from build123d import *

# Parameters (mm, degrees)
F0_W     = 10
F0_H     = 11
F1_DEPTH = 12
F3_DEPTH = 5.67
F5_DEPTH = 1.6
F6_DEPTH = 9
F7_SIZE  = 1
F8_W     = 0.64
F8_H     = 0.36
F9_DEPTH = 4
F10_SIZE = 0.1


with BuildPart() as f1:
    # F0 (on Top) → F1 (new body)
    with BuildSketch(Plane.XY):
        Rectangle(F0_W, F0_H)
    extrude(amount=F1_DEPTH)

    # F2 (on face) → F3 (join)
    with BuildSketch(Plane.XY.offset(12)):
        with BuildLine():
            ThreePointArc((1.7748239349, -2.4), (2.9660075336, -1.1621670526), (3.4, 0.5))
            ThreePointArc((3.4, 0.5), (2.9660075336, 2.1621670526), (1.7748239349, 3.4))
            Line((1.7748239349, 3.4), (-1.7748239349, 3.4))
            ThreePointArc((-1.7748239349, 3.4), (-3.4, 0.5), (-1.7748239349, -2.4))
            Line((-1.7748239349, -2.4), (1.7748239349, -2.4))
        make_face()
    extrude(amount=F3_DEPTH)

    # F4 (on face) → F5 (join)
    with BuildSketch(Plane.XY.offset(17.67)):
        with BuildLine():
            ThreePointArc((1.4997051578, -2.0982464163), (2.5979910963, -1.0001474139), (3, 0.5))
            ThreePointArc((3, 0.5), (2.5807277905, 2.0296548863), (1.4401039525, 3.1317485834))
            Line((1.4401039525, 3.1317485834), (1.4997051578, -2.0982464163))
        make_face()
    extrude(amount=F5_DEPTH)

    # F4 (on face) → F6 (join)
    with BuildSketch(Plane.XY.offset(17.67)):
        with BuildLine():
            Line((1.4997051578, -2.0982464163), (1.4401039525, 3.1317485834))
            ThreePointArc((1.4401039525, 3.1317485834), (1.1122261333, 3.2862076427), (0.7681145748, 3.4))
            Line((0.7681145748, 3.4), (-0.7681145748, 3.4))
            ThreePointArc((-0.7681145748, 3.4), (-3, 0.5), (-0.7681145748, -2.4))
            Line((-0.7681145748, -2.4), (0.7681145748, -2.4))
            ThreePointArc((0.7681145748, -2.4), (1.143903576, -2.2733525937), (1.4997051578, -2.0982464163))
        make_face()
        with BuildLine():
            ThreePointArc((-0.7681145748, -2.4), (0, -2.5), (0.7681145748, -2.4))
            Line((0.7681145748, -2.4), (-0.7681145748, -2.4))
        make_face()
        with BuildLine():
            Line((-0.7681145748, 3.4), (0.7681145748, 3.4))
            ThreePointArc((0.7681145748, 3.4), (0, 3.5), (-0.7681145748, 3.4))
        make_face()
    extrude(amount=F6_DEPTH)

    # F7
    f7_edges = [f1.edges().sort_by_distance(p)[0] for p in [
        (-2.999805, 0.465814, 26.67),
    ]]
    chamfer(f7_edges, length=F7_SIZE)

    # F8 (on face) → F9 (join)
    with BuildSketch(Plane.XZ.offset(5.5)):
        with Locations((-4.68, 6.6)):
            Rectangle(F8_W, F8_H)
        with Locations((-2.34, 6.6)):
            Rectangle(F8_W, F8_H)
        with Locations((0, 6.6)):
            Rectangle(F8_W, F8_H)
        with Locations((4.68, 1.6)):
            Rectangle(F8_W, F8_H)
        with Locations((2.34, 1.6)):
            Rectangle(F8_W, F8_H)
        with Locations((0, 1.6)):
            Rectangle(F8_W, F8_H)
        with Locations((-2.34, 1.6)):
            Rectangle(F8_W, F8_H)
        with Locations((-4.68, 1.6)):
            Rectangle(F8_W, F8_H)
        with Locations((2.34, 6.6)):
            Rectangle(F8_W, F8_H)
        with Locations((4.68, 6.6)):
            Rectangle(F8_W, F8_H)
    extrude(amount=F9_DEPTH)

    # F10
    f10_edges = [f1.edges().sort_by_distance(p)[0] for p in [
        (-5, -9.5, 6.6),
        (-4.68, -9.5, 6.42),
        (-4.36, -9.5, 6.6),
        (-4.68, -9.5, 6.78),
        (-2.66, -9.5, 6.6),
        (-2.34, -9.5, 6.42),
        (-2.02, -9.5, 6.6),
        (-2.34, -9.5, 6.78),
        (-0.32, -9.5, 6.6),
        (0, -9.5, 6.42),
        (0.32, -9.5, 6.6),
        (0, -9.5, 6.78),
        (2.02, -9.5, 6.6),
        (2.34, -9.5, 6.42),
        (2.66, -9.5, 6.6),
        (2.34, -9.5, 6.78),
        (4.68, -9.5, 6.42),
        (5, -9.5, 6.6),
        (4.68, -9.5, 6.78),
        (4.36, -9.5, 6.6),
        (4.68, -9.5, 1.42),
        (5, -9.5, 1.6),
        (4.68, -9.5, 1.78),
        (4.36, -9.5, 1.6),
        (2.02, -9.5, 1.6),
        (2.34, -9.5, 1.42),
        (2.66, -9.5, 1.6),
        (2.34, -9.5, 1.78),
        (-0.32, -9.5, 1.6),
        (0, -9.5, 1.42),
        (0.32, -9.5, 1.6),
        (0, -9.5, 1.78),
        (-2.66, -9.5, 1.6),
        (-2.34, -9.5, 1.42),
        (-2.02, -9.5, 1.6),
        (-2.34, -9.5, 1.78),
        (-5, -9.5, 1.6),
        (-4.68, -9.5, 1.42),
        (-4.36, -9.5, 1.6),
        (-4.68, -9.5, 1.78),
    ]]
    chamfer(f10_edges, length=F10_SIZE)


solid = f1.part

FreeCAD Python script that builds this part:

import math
import FreeCAD as App
import Part
import Sketcher
Q = App.Units.Quantity


def edges_at(feature, points):
    """Names of the edges that pass closest to the given points."""
    edges = feature.Shape.Edges
    near = lambda p: min(range(len(edges)), key=lambda i: edges[i].distToShape(Part.Vertex(*p))[0])
    return sorted({f"Edge{near(p) + 1}" for p in points})


def add_polygon(sketch, points):
    """Adds a closed chain of lines whose ends are joined by coincident constraints."""
    first, n = sketch.GeometryCount, len(points)
    for a, b in zip(points, points[1:] + points[:1]):
        sketch.addGeometry(Part.LineSegment(App.Vector(*a, 0), App.Vector(*b, 0)), False)
    for i in range(n):
        sketch.addConstraint(Sketcher.Constraint("Coincident", first + i, 2, first + (i + 1) % n, 1))

doc = App.newDocument("Part")
params = doc.addObject("Spreadsheet::Sheet", "Params")
for row, (alias, value) in enumerate([
    ("sketch1_width", "10 mm"),
    ("sketch1_height", "11 mm"),
    ("pad1_length", "12 mm"),
    ("sketch2_radius", "3.4 mm"),
    ("pad2_length", "5.67 mm"),
    ("sketch3_radius", "3 mm"),
    ("pad3_length", "1.6 mm"),
    ("sketch4_radius", "3 mm"),
    ("pad4_length", "9 mm"),
    ("chamfer_size", "1 mm"),
    ("sketch5_width", "0.64 mm"),
    ("sketch5_height", "0.36 mm"),
    ("pad5_length", "4 mm"),
    ("chamfer2_size", "0.1 mm"),
], start=1):
    params.set(f"A{row}", alias)
    params.set(f"B{row}", "=" + value)
    params.setAlias(f"B{row}", alias)

body = doc.addObject("PartDesign::Body", "Body")

sketch1 = body.newObject("Sketcher::SketchObject", "Sketch")
sketch1.AttachmentSupport = (doc.getObject("XY_Plane"), [""])
sketch1.MapMode = "FlatFace"
add_polygon(sketch1, [(-5, 6), (-5, -6), (5, -6), (5, 6)])
sketch1.addConstraint(Sketcher.Constraint("Vertical", 0))
sketch1.addConstraint(Sketcher.Constraint("Horizontal", 1))
sketch1.addConstraint(Sketcher.Constraint("Vertical", 2))
sketch1.addConstraint(Sketcher.Constraint("Horizontal", 3))
sketch1.addConstraint(Sketcher.Constraint("Symmetric", 0, 2, 2, 2, -1, 1))
sketch1.addConstraint(Sketcher.Constraint("DistanceX", 1, 1, 1, 2, Q("10 mm")))
sketch1.addConstraint(Sketcher.Constraint("DistanceY", 0, 2, 0, 1, Q("11 mm")))
sketch1.setExpression("Constraints[9]", "Params.sketch1_width")
sketch1.setExpression("Constraints[10]", "Params.sketch1_height")
pad1 = body.newObject("PartDesign::Pad", "Pad")
pad1.Profile = sketch1
pad1.setExpression("Length", "Params.pad1_length")

sketch2 = body.newObject("Sketcher::SketchObject", "Sketch001")
sketch2.AttachmentSupport = (doc.getObject("XY_Plane"), [""])
sketch2.MapMode = "FlatFace"
sketch2.AttachmentOffset = App.Placement(App.Vector(0, 0, 12), App.Rotation())
sketch2.addGeometry(Part.ArcOfCircle(Part.Circle(App.Vector(0, 0.5, 0), App.Vector(0, 0, 1), 3.4), math.radians(-59), math.radians(0)), False)
sketch2.addGeometry(Part.ArcOfCircle(Part.Circle(App.Vector(0, 0.5, 0), App.Vector(0, 0, 1), 3.4), math.radians(0), math.radians(59)), False)
sketch2.addGeometry(Part.LineSegment(App.Vector(1.8, 3.4, 0), App.Vector(-1.8, 3.4, 0)), False)
sketch2.addGeometry(Part.ArcOfCircle(Part.Circle(App.Vector(0, 0.5, 0), App.Vector(0, 0, 1), 3.4), math.radians(121), math.radians(239)), False)
sketch2.addGeometry(Part.LineSegment(App.Vector(-1.8, -2.4, 0), App.Vector(1.8, -2.4, 0)), False)
sketch2.addConstraint(Sketcher.Constraint("Tangent", 0, 2, 1, 1))
sketch2.addConstraint(Sketcher.Constraint("Coincident", 1, 2, 2, 1))
sketch2.addConstraint(Sketcher.Constraint("Coincident", 2, 2, 3, 1))
sketch2.addConstraint(Sketcher.Constraint("Coincident", 3, 2, 4, 1))
sketch2.addConstraint(Sketcher.Constraint("Coincident", 4, 2, 0, 1))
sketch2.addConstraint(Sketcher.Constraint("Horizontal", 2))
sketch2.addConstraint(Sketcher.Constraint("Horizontal", 4))
sketch2.addConstraint(Sketcher.Constraint("Coincident", 3, 3, 0, 3))
sketch2.addConstraint(Sketcher.Constraint("Equal", 0, 1))
sketch2.addConstraint(Sketcher.Constraint("Equal", 1, 3))
sketch2.addConstraint(Sketcher.Constraint("PointOnObject", 0, 3, -2))
sketch2.addConstraint(Sketcher.Constraint("Horizontal", 3, 3, 0, 2))
sketch2.addConstraint(Sketcher.Constraint("Vertical", 2, 2, 3, 2))
sketch2.addConstraint(Sketcher.Constraint("Radius", 0, Q("3.4 mm")))
sketch2.addConstraint(Sketcher.Constraint("DistanceY", -1, 1, 0, 3, Q("0.5 mm")))
sketch2.addConstraint(Sketcher.Constraint("DistanceY", -1, 1, 1, 2, Q("3.4 mm")))
sketch2.setExpression("Constraints[13]", "Params.sketch2_radius")
pad2 = body.newObject("PartDesign::Pad", "Pad001")
pad2.Profile = sketch2
pad2.setExpression("Length", "Params.pad2_length")

sketch3 = body.newObject("Sketcher::SketchObject", "Sketch002")
sketch3.AttachmentSupport = (doc.getObject("XY_Plane"), [""])
sketch3.MapMode = "FlatFace"
sketch3.AttachmentOffset = App.Placement(App.Vector(0, 0, 17.67), App.Rotation())
sketch3.addGeometry(Part.ArcOfCircle(Part.Circle(App.Vector(0, 0.5, 0), App.Vector(0, 0, 1), 3), math.radians(-60), math.radians(0)), False)
sketch3.addGeometry(Part.ArcOfCircle(Part.Circle(App.Vector(0, 0.5, 0), App.Vector(0, 0, 1), 3), math.radians(0), math.radians(61)), False)
sketch3.addGeometry(Part.LineSegment(App.Vector(1.4, 3.1, 0), App.Vector(1.5, -2.1, 0)), False)
sketch3.addConstraint(Sketcher.Constraint("Tangent", 0, 2, 1, 1))
sketch3.addConstraint(Sketcher.Constraint("Coincident", 1, 2, 2, 1))
sketch3.addConstraint(Sketcher.Constraint("Coincident", 2, 2, 0, 1))
sketch3.addConstraint(Sketcher.Constraint("Equal", 0, 1))
sketch3.addConstraint(Sketcher.Constraint("PointOnObject", 0, 3, -2))
sketch3.addConstraint(Sketcher.Constraint("Horizontal", 1, 3, 0, 2))
sketch3.addConstraint(Sketcher.Constraint("Radius", 0, Q("3 mm")))
sketch3.addConstraint(Sketcher.Constraint("DistanceY", -1, 1, 0, 3, Q("0.5 mm")))
sketch3.addConstraint(Sketcher.Constraint("DistanceX", 1, 2, 2, 2, Q("0.059601 mm")))
sketch3.addConstraint(Sketcher.Constraint("DistanceY", -1, 1, 1, 2, Q("3.131749 mm")))
sketch3.setExpression("Constraints[6]", "Params.sketch3_radius")
pad3 = body.newObject("PartDesign::Pad", "Pad002")
pad3.Profile = sketch3
pad3.setExpression("Length", "Params.pad3_length")

sketch4 = body.newObject("Sketcher::SketchObject", "Sketch003")
sketch4.AttachmentSupport = (doc.getObject("XY_Plane"), [""])
sketch4.MapMode = "FlatFace"
sketch4.AttachmentOffset = App.Placement(App.Vector(0, 0, 17.67), App.Rotation())
sketch4.addGeometry(Part.LineSegment(App.Vector(1.5, -2.1, 0), App.Vector(1.4, 3.1, 0)), False)
sketch4.addGeometry(Part.ArcOfCircle(Part.Circle(App.Vector(0, 0.5, 0), App.Vector(0, 0, 1), 3), math.radians(61.31), math.radians(75.16)), False)
sketch4.addGeometry(Part.ArcOfCircle(Part.Circle(App.Vector(0, 0.5, 0), App.Vector(0, 0, 1), 3), math.radians(75), math.radians(105)), False)
sketch4.addGeometry(Part.ArcOfCircle(Part.Circle(App.Vector(0, 0.5, 0), App.Vector(0, 0, 1), 3), math.radians(105), math.radians(255)), False)
sketch4.addGeometry(Part.ArcOfCircle(Part.Circle(App.Vector(0, 0.5, 0), App.Vector(0, 0, 1), 3), math.radians(-105), math.radians(-75)), False)
sketch4.addGeometry(Part.ArcOfCircle(Part.Circle(App.Vector(0, 0.5, 0), App.Vector(0, 0, 1), 3), math.radians(-75.16), math.radians(-60.01)), False)
sketch4.addConstraint(Sketcher.Constraint("Coincident", 0, 2, 1, 1))
sketch4.addConstraint(Sketcher.Constraint("Tangent", 1, 2, 2, 1))
sketch4.addConstraint(Sketcher.Constraint("Tangent", 2, 2, 3, 1))
sketch4.addConstraint(Sketcher.Constraint("Tangent", 3, 2, 4, 1))
sketch4.addConstraint(Sketcher.Constraint("Tangent", 4, 2, 5, 1))
sketch4.addConstraint(Sketcher.Constraint("Coincident", 5, 2, 0, 1))
sketch4.addConstraint(Sketcher.Constraint("Coincident", 3, 3, 1, 3))
sketch4.addConstraint(Sketcher.Constraint("Coincident", 5, 3, 1, 3))
sketch4.addConstraint(Sketcher.Constraint("Symmetric", 1, 2, 2, 2, -2))
sketch4.addConstraint(Sketcher.Constraint("Horizontal", 3, 2, 4, 2))
sketch4.addConstraint(Sketcher.Constraint("Vertical", 2, 2, 3, 2))
sketch4.addConstraint(Sketcher.Constraint("Radius", 1, Q("3 mm")))
sketch4.addConstraint(Sketcher.Constraint("DistanceY", -1, 1, 1, 3, Q("0.5 mm")))
sketch4.addConstraint(Sketcher.Constraint("DistanceY", -1, 1, 1, 2, Q("3.4 mm")))
sketch4.addConstraint(Sketcher.Constraint("DistanceY", -1, 1, 0, 2, Q("3.131749 mm")))
sketch4.addConstraint(Sketcher.Constraint("DistanceX", 4, 2, 5, 2, Q("0.731591 mm")))
sketch4.setExpression("Constraints[11]", "Params.sketch4_radius")
pad4 = body.newObject("PartDesign::Pad", "Pad003")
pad4.Profile = sketch4
pad4.setExpression("Length", "Params.pad4_length")
doc.recompute()

chamfer = body.newObject("PartDesign::Chamfer", "Chamfer")
chamfer.Base = (pad4, edges_at(pad4, [(-3, 0.5, 26.67)]))
chamfer.setExpression("Size", "Params.chamfer_size")

sketch5 = body.newObject("Sketcher::SketchObject", "Sketch004")
sketch5.AttachmentSupport = (doc.getObject("XZ_Plane"), [""])
sketch5.MapMode = "FlatFace"
sketch5.AttachmentOffset = App.Placement(App.Vector(0, 0, 5.5), App.Rotation())
add_polygon(sketch5, [(-5, 6.78), (-5, 6.42), (-4.36, 6.42), (-4.36, 6.78)])
add_polygon(sketch5, [(-2.66, 6.78), (-2.66, 6.42), (-2.02, 6.42), (-2.02, 6.78)])
add_polygon(sketch5, [(-0.32, 6.78), (-0.32, 6.42), (0.32, 6.42), (0.32, 6.78)])
add_polygon(sketch5, [(4.36, 1.78), (4.36, 1.42), (5, 1.42), (5, 1.78)])
add_polygon(sketch5, [(2.02, 1.78), (2.02, 1.42), (2.66, 1.42), (2.66, 1.78)])
add_polygon(sketch5, [(-0.32, 1.78), (-0.32, 1.42), (0.32, 1.42), (0.32, 1.78)])
add_polygon(sketch5, [(-2.66, 1.78), (-2.66, 1.42), (-2.02, 1.42), (-2.02, 1.78)])
add_polygon(sketch5, [(-5, 1.78), (-5, 1.42), (-4.36, 1.42), (-4.36, 1.78)])
add_polygon(sketch5, [(2.02, 6.78), (2.02, 6.42), (2.66, 6.42), (2.66, 6.78)])
add_polygon(sketch5, [(4.36, 6.78), (4.36, 6.42), (5, 6.42), (5, 6.78)])
sketch5.addConstraint(Sketcher.Constraint("Vertical", 0))
sketch5.addConstraint(Sketcher.Constraint("Horizontal", 1))
sketch5.addConstraint(Sketcher.Constraint("Vertical", 2))
sketch5.addConstraint(Sketcher.Constraint("Horizontal", 3))
sketch5.addConstraint(Sketcher.Constraint("Vertical", 4))
sketch5.addConstraint(Sketcher.Constraint("Horizontal", 5))
sketch5.addConstraint(Sketcher.Constraint("Vertical", 6))
sketch5.addConstraint(Sketcher.Constraint("Horizontal", 7))
sketch5.addConstraint(Sketcher.Constraint("Vertical", 8))
sketch5.addConstraint(Sketcher.Constraint("Horizontal", 9))
sketch5.addConstraint(Sketcher.Constraint("Vertical", 10))
sketch5.addConstraint(Sketcher.Constraint("Horizontal", 11))
sketch5.addConstraint(Sketcher.Constraint("Vertical", 12))
sketch5.addConstraint(Sketcher.Constraint("Horizontal", 13))
sketch5.addConstraint(Sketcher.Constraint("Vertical", 14))
sketch5.addConstraint(Sketcher.Constraint("Horizontal", 15))
sketch5.addConstraint(Sketcher.Constraint("Vertical", 16))
sketch5.addConstraint(Sketcher.Constraint("Horizontal", 17))
sketch5.addConstraint(Sketcher.Constraint("Vertical", 18))
sketch5.addConstraint(Sketcher.Constraint("Horizontal", 19))
sketch5.addConstraint(Sketcher.Constraint("Vertical", 20))
sketch5.addConstraint(Sketcher.Constraint("Horizontal", 21))
sketch5.addConstraint(Sketcher.Constraint("Vertical", 22))
sketch5.addConstraint(Sketcher.Constraint("Horizontal", 23))
sketch5.addConstraint(Sketcher.Constraint("Vertical", 24))
sketch5.addConstraint(Sketcher.Constraint("Horizontal", 25))
sketch5.addConstraint(Sketcher.Constraint("Vertical", 26))
sketch5.addConstraint(Sketcher.Constraint("Horizontal", 27))
sketch5.addConstraint(Sketcher.Constraint("Vertical", 28))
sketch5.addConstraint(Sketcher.Constraint("Horizontal", 29))
sketch5.addConstraint(Sketcher.Constraint("Vertical", 30))
sketch5.addConstraint(Sketcher.Constraint("Horizontal", 31))
sketch5.addConstraint(Sketcher.Constraint("Vertical", 32))
sketch5.addConstraint(Sketcher.Constraint("Horizontal", 33))
sketch5.addConstraint(Sketcher.Constraint("Vertical", 34))
sketch5.addConstraint(Sketcher.Constraint("Horizontal", 35))
sketch5.addConstraint(Sketcher.Constraint("Vertical", 36))
sketch5.addConstraint(Sketcher.Constraint("Horizontal", 37))
sketch5.addConstraint(Sketcher.Constraint("Vertical", 38))
sketch5.addConstraint(Sketcher.Constraint("Horizontal", 39))
sketch5.addConstraint(Sketcher.Constraint("Symmetric", 17, 2, 24, 2, -2))
sketch5.addConstraint(Sketcher.Constraint("Symmetric", 19, 2, 26, 2, -2))
sketch5.addConstraint(Sketcher.Constraint("Symmetric", 13, 2, 28, 2, -2))
sketch5.addConstraint(Sketcher.Constraint("Symmetric", 15, 2, 30, 2, -2))
sketch5.addConstraint(Sketcher.Constraint("Symmetric", 5, 2, 32, 2, -2))
sketch5.addConstraint(Sketcher.Constraint("Symmetric", 7, 2, 34, 2, -2))
sketch5.addConstraint(Sketcher.Constraint("Symmetric", 1, 2, 36, 2, -2))
sketch5.addConstraint(Sketcher.Constraint("Symmetric", 3, 2, 38, 2, -2))
sketch5.addConstraint(Sketcher.Constraint("Horizontal", 1, 2, 4, 2))
sketch5.addConstraint(Sketcher.Constraint("Horizontal", 3, 2, 6, 2))
sketch5.addConstraint(Sketcher.Constraint("Horizontal", 5, 2, 8, 2))
sketch5.addConstraint(Sketcher.Constraint("Horizontal", 7, 2, 10, 2))
sketch5.addConstraint(Sketcher.Constraint("Horizontal", 13, 2, 16, 2))
sketch5.addConstraint(Sketcher.Constraint("Horizontal", 15, 2, 18, 2))
sketch5.addConstraint(Sketcher.Constraint("Horizontal", 17, 2, 20, 2))
sketch5.addConstraint(Sketcher.Constraint("Horizontal", 19, 2, 22, 2))
sketch5.addConstraint(Sketcher.Constraint("Vertical", 11, 2, 20, 2))
sketch5.addConstraint(Sketcher.Constraint("Vertical", 10, 2, 21, 2))
sketch5.addConstraint(Sketcher.Constraint("Vertical", 7, 2, 24, 2))
sketch5.addConstraint(Sketcher.Constraint("Vertical", 6, 2, 25, 2))
sketch5.addConstraint(Sketcher.Constraint("Vertical", 3, 2, 28, 2))
sketch5.addConstraint(Sketcher.Constraint("Vertical", 2, 2, 29, 2))
sketch5.addConstraint(Sketcher.Constraint("Equal", 3, 5))
sketch5.addConstraint(Sketcher.Constraint("Equal", 7, 9))
sketch5.addConstraint(Sketcher.Constraint("Equal", 10, 12))
sketch5.addConstraint(Sketcher.Constraint("DistanceX", 0, 2, -1, 1, Q("5 mm")))
sketch5.addConstraint(Sketcher.Constraint("DistanceY", 12, 2, 9, 2, Q("5 mm")))
sketch5.addConstraint(Sketcher.Constraint("DistanceX", 1, 1, 1, 2, Q("0.64 mm")))
sketch5.addConstraint(Sketcher.Constraint("DistanceY", 0, 2, 0, 1, Q("0.36 mm")))
sketch5.addConstraint(Sketcher.Constraint("DistanceX", 1, 2, 4, 2, Q("1.7 mm")))
sketch5.addConstraint(Sketcher.Constraint("DistanceX", 5, 2, 8, 2, Q("1.7 mm")))
sketch5.addConstraint(Sketcher.Constraint("DistanceY", -1, 1, 0, 2, Q("6.42 mm")))
sketch5.setExpression("Constraints[107]", "Params.sketch5_width")
sketch5.setExpression("Constraints[108]", "Params.sketch5_height")
pad5 = body.newObject("PartDesign::Pad", "Pad004")
pad5.Profile = sketch5
pad5.setExpression("Length", "Params.pad5_length")
doc.recompute()

chamfer2 = body.newObject("PartDesign::Chamfer", "Chamfer001")
chamfer2.Base = (pad5, edges_at(pad5, [
    (-5, -9.5, 6.6),
    (-4.68, -9.5, 6.42),
    (-4.36, -9.5, 6.6),
    (-4.68, -9.5, 6.78),
    (-2.66, -9.5, 6.6),
    (-2.34, -9.5, 6.42),
    (-2.02, -9.5, 6.6),
    (-2.34, -9.5, 6.78),
    (-0.32, -9.5, 6.6),
    (0, -9.5, 6.42),
    (0.32, -9.5, 6.6),
    (0, -9.5, 6.78),
    (2.02, -9.5, 6.6),
    (2.34, -9.5, 6.42),
    (2.66, -9.5, 6.6),
    (2.34, -9.5, 6.78),
    (4.68, -9.5, 6.42),
    (5, -9.5, 6.6),
    (4.68, -9.5, 6.78),
    (4.36, -9.5, 6.6),
    (4.68, -9.5, 1.42),
    (5, -9.5, 1.6),
    (4.68, -9.5, 1.78),
    (4.36, -9.5, 1.6),
    (2.02, -9.5, 1.6),
    (2.34, -9.5, 1.42),
    (2.66, -9.5, 1.6),
    (2.34, -9.5, 1.78),
    (-0.32, -9.5, 1.6),
    (0, -9.5, 1.42),
    (0.32, -9.5, 1.6),
    (0, -9.5, 1.78),
    (-2.66, -9.5, 1.6),
    (-2.34, -9.5, 1.42),
    (-2.02, -9.5, 1.6),
    (-2.34, -9.5, 1.78),
    (-5, -9.5, 1.6),
    (-4.68, -9.5, 1.42),
    (-4.36, -9.5, 1.6),
    (-4.68, -9.5, 1.78),
]))
chamfer2.setExpression("Size", "Params.chamfer2_size")

doc.recompute()
